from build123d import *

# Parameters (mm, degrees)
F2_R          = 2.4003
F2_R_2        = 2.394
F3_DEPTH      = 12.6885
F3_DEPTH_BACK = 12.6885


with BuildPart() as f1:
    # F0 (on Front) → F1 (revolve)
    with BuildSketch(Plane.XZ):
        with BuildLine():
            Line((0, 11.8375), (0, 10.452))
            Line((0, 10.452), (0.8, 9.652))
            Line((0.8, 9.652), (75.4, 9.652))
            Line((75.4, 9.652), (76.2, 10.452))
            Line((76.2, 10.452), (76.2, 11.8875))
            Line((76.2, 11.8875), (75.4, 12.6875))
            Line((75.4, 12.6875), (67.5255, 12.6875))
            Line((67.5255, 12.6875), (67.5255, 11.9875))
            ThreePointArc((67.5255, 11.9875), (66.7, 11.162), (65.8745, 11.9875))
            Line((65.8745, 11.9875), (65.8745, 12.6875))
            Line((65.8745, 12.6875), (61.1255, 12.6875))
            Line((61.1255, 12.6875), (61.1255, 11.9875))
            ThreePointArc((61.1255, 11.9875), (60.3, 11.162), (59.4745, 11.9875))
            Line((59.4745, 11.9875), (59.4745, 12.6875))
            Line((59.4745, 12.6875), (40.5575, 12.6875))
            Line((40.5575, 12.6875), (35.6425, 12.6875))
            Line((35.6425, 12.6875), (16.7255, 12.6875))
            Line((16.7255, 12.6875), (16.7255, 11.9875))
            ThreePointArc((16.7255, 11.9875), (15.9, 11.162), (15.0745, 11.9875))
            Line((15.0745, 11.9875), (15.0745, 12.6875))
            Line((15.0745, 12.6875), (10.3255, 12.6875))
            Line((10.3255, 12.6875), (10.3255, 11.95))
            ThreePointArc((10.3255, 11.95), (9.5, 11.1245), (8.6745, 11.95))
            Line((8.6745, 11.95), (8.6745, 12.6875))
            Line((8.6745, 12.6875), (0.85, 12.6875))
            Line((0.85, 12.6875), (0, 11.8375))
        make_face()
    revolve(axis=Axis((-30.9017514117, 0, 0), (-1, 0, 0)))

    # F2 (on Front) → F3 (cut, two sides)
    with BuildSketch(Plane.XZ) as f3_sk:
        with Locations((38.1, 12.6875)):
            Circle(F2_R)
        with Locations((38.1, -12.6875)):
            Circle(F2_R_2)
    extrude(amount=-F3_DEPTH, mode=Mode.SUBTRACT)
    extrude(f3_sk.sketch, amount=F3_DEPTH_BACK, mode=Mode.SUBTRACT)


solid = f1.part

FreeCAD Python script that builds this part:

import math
import FreeCAD as App
import Part
import Sketcher
from FreeCAD import Vector
Q = App.Units.Quantity

doc = App.newDocument("Part")
params = doc.addObject("Spreadsheet::Sheet", "Params")
for row, (alias, value) in enumerate([
    ("sketch1_width", "74.6 mm"),
    ("sketch1_height", "0.7 mm"),
    ("revolution_angle", "360 deg"),
], start=1):
    params.set(f"A{row}", alias)
    params.set(f"B{row}", "=" + value)
    params.setAlias(f"B{row}", alias)

body = doc.addObject("PartDesign::Body", "Body")

sketch1 = body.newObject("Sketcher::SketchObject", "Sketch")
sketch1.AttachmentSupport = (doc.getObject("XZ_Plane"), [""])
sketch1.MapMode = "FlatFace"
sketch1.addGeometry(Part.LineSegment(Vector(0, 11.8, 0), Vector(0, 10.5, 0)), False)
sketch1.addGeometry(Part.LineSegment(Vector(0, 10.5, 0), Vector(0.8, 9.7, 0)), False)
sketch1.addGeometry(Part.LineSegment(Vector(0.8, 9.7, 0), Vector(75.4, 9.7, 0)), False)
sketch1.addGeometry(Part.LineSegment(Vector(75.4, 9.7, 0), Vector(76.2, 10.5, 0)), False)
sketch1.addGeometry(Part.LineSegment(Vector(76.2, 10.5, 0), Vector(76.2, 11.9, 0)), False)
sketch1.addGeometry(Part.LineSegment(Vector(76.2, 11.9, 0), Vector(75.4, 12.7, 0)), False)
sketch1.addGeometry(Part.LineSegment(Vector(75.4, 12.7, 0), Vector(67.5, 12.7, 0)), False)
sketch1.addGeometry(Part.LineSegment(Vector(67.5, 12.7, 0), Vector(67.5, 12, 0)), False)
sketch1.addGeometry(Part.ArcOfCircle(Part.Circle(Vector(66.7, 12, 0), Vector(0, 0, 1), 0.8), math.radians(180), math.radians(360)), False)
sketch1.addGeometry(Part.LineSegment(Vector(65.9, 12, 0), Vector(65.9, 12.7, 0)), False)
sketch1.addGeometry(Part.LineSegment(Vector(65.9, 12.7, 0), Vector(61.1, 12.7, 0)), False)
sketch1.addGeometry(Part.LineSegment(Vector(61.1, 12.7, 0), Vector(61.1, 12, 0)), False)
sketch1.addGeometry(Part.ArcOfCircle(Part.Circle(Vector(60.3, 12, 0), Vector(0, 0, 1), 0.8), math.radians(180), math.radians(360)), False)
sketch1.addGeometry(Part.LineSegment(Vector(59.5, 12, 0), Vector(59.5, 12.7, 0)), False)
sketch1.addGeometry(Part.LineSegment(Vector(59.5, 12.7, 0), Vector(16.7, 12.7, 0)), False)
sketch1.addGeometry(Part.LineSegment(Vector(16.7, 12.7, 0), Vector(16.7, 12, 0)), False)
sketch1.addGeometry(Part.ArcOfCircle(Part.Circle(Vector(15.9, 12, 0), Vector(0, 0, 1), 0.8), math.radians(180), math.radians(360)), False)
sketch1.addGeometry(Part.LineSegment(Vector(15.1, 12, 0), Vector(15.1, 12.7, 0)), False)
sketch1.addGeometry(Part.LineSegment(Vector(15.1, 12.7, 0), Vector(10.3, 12.7, 0)), False)
sketch1.addGeometry(Part.LineSegment(Vector(10.3, 12.7, 0), Vector(10.3, 11.9, 0)), False)
sketch1.addGeometry(Part.ArcOfCircle(Part.Circle(Vector(9.5, 11.9, 0), Vector(0, 0, 1), 0.8), math.radians(180), math.radians(360)), False)
sketch1.addGeometry(Part.LineSegment(Vector(8.7, 11.9, 0), Vector(8.7, 12.7, 0)), False)
sketch1.addGeometry(Part.LineSegment(Vector(8.7, 12.7, 0), Vector(0.8, 12.7, 0)), False)
sketch1.addGeometry(Part.LineSegment(Vector(0.8, 12.7, 0), Vector(0, 11.8, 0)), False)
sketch1.addConstraint(Sketcher.Constraint("Coincident", 0, 2, 1, 1))
sketch1.addConstraint(Sketcher.Constraint("Coincident", 1, 2, 2, 1))
sketch1.addConstraint(Sketcher.Constraint("Coincident", 2, 2, 3, 1))
sketch1.addConstraint(Sketcher.Constraint("Coincident", 3, 2, 4, 1))
sketch1.addConstraint(Sketcher.Constraint("Coincident", 4, 2, 5, 1))
sketch1.addConstraint(Sketcher.Constraint("Coincident", 5, 2, 6, 1))
sketch1.addConstraint(Sketcher.Constraint("Coincident", 6, 2, 7, 1))
sketch1.addConstraint(Sketcher.Constraint("Tangent", 7, 2, 8, 2))
sketch1.addConstraint(Sketcher.Constraint("Tangent", 8, 1, 9, 1))
sketch1.addConstraint(Sketcher.Constraint("Coincident", 9, 2, 10, 1))
sketch1.addConstraint(Sketcher.Constraint("Coincident", 10, 2, 11, 1))
sketch1.addConstraint(Sketcher.Constraint("Tangent", 11, 2, 12, 2))
sketch1.addConstraint(Sketcher.Constraint("Tangent", 12, 1, 13, 1))
sketch1.addConstraint(Sketcher.Constraint("Coincident", 13, 2, 14, 1))
sketch1.addConstraint(Sketcher.Constraint("Coincident", 14, 2, 15, 1))
sketch1.addConstraint(Sketcher.Constraint("Tangent", 15, 2, 16, 2))
sketch1.addConstraint(Sketcher.Constraint("Tangent", 16, 1, 17, 1))
sketch1.addConstraint(Sketcher.Constraint("Coincident", 17, 2, 18, 1))
sketch1.addConstraint(Sketcher.Constraint("Coincident", 18, 2, 19, 1))
sketch1.addConstraint(Sketcher.Constraint("Tangent", 19, 2, 20, 2))
sketch1.addConstraint(Sketcher.Constraint("Tangent", 20, 1, 21, 1))
sketch1.addConstraint(Sketcher.Constraint("Coincident", 21, 2, 22, 1))
sketch1.addConstraint(Sketcher.Constraint("Coincident", 22, 2, 23, 1))
sketch1.addConstraint(Sketcher.Constraint("Coincident", 23, 2, 0, 1))
sketch1.addConstraint(Sketcher.Constraint("Vertical", 0))
sketch1.addConstraint(Sketcher.Constraint("Horizontal", 2))
sketch1.addConstraint(Sketcher.Constraint("Vertical", 4))
sketch1.addConstraint(Sketcher.Constraint("Horizontal", 6))
sketch1.addConstraint(Sketcher.Constraint("Vertical", 7))
sketch1.addConstraint(Sketcher.Constraint("Vertical", 9))
sketch1.addConstraint(Sketcher.Constraint("Horizontal", 10))
sketch1.addConstraint(Sketcher.Constraint("Vertical", 11))
sketch1.addConstraint(Sketcher.Constraint("Vertical", 13))
sketch1.addConstraint(Sketcher.Constraint("Horizontal", 14))
sketch1.addConstraint(Sketcher.Constraint("Vertical", 15))
sketch1.addConstraint(Sketcher.Constraint("Vertical", 17))
sketch1.addConstraint(Sketcher.Constraint("Horizontal", 18))
sketch1.addConstraint(Sketcher.Constraint("Vertical", 19))
sketch1.addConstraint(Sketcher.Constraint("Vertical", 21))
sketch1.addConstraint(Sketcher.Constraint("Horizontal", 22))
sketch1.addConstraint(Sketcher.Constraint("Equal", 8, 12))
sketch1.addConstraint(Sketcher.Constraint("Equal", 12, 16))
sketch1.addConstraint(Sketcher.Constraint("Equal", 16, 20))
sketch1.addConstraint(Sketcher.Constraint("PointOnObject", 0, 2, -2))
sketch1.addConstraint(Sketcher.Constraint("Perpendicular", 1, 3))
sketch1.addConstraint(Sketcher.Constraint("Perpendicular", 3, 5))
sketch1.addConstraint(Sketcher.Constraint("Perpendicular", 5, 23))
sketch1.addConstraint(Sketcher.Constraint("Horizontal", 8, 3, 12, 3))
sketch1.addConstraint(Sketcher.Constraint("Horizontal", 12, 3, 16, 3))
sketch1.addConstraint(Sketcher.Constraint("Horizontal", 0, 2, 3, 2))
sketch1.addConstraint(Sketcher.Constraint("Horizontal", 6, 2, 9, 2))
sketch1.addConstraint(Sketcher.Constraint("Horizontal", 10, 2, 13, 2))
sketch1.addConstraint(Sketcher.Constraint("Horizontal", 14, 2, 17, 2))
sketch1.addConstraint(Sketcher.Constraint("Horizontal", 18, 2, 21, 2))
sketch1.addConstraint(Sketcher.Constraint("Vertical", 2, 2, 5, 2))
sketch1.addConstraint(Sketcher.Constraint("Equal", 10, 18))
sketch1.addConstraint(Sketcher.Constraint("Equal", 1, 3))
sketch1.addConstraint(Sketcher.Constraint("DistanceX", 2, 1, 2, 2, Q("74.6 mm")))
sketch1.addConstraint(Sketcher.Constraint("DistanceY", 7, 2, 7, 1, Q("0.7 mm")))
sketch1.addConstraint(Sketcher.Constraint("DistanceX", -1, 1, 8, 3, Q("66.7 mm")))
sketch1.addConstraint(Sketcher.Constraint("DistanceX", -1, 1, 12, 3, Q("60.3 mm")))
sketch1.addConstraint(Sketcher.Constraint("DistanceX", -1, 1, 16, 3, Q("15.9 mm")))
sketch1.addConstraint(Sketcher.Constraint("DistanceX", -1, 1, 1, 2, Q("0.8 mm")))
sketch1.addConstraint(Sketcher.Constraint("Radius", 8, Q("0.8255 mm")))
sketch1.addConstraint(Sketcher.Constraint("DistanceY", -1, 1, 20, 3, Q("11.95 mm")))
sketch1.addConstraint(Sketcher.Constraint("DistanceX", -1, 1, 22, 2, Q("0.85 mm")))
sketch1.addConstraint(Sketcher.Constraint("DistanceY", 0, 2, 0, 1, Q("1.3855 mm")))
sketch1.addConstraint(Sketcher.Constraint("DistanceY", 19, 2, 19, 1, Q("0.7375 mm")))
sketch1.setExpression("Constraints[57]", "Params.sketch1_width")
sketch1.setExpression("Constraints[58]", "Params.sketch1_height")
revolution = body.newObject("PartDesign::Revolution", "Revolution")
revolution.Profile = sketch1
revolution.ReferenceAxis = (sketch1, ["H_Axis"])
revolution.setExpression("Angle", "Params.revolution_angle")

sketch2 = body.newObject("Sketcher::SketchObject", "Sketch001")
sketch2.AttachmentSupport = (doc.getObject("XZ_Plane"), [""])
sketch2.MapMode = "FlatFace"
sketch2.addGeometry(Part.Circle(Vector(38.1, 12.7, 0), Vector(0, 0, 1), 2.4), False)
sketch2.addGeometry(Part.Circle(Vector(38.1, -12.7, 0), Vector(0, 0, 1), 2.4), False)
sketch2.addConstraint(Sketcher.Constraint("Symmetric", 0, 3, 1, 3, -1))
sketch2.addConstraint(Sketcher.Constraint("Diameter", 1, Q("4.788 mm")))
sketch2.addConstraint(Sketcher.Constraint("Diameter", 0, Q("4.8006 mm")))
sketch2.addConstraint(Sketcher.Constraint("DistanceX", -1, 1, 0, 3, Q("38.1 mm")))
sketch2.addConstraint(Sketcher.Constraint("DistanceY", 1, 3, 0, 3, Q("25.375 mm")))
pocket1 = body.newObject("PartDesign::Pocket", "Pocket")
pocket1.Profile = sketch2
pocket1.Type = "ThroughAll"
pocket1.Midplane = True

doc.recompute()
